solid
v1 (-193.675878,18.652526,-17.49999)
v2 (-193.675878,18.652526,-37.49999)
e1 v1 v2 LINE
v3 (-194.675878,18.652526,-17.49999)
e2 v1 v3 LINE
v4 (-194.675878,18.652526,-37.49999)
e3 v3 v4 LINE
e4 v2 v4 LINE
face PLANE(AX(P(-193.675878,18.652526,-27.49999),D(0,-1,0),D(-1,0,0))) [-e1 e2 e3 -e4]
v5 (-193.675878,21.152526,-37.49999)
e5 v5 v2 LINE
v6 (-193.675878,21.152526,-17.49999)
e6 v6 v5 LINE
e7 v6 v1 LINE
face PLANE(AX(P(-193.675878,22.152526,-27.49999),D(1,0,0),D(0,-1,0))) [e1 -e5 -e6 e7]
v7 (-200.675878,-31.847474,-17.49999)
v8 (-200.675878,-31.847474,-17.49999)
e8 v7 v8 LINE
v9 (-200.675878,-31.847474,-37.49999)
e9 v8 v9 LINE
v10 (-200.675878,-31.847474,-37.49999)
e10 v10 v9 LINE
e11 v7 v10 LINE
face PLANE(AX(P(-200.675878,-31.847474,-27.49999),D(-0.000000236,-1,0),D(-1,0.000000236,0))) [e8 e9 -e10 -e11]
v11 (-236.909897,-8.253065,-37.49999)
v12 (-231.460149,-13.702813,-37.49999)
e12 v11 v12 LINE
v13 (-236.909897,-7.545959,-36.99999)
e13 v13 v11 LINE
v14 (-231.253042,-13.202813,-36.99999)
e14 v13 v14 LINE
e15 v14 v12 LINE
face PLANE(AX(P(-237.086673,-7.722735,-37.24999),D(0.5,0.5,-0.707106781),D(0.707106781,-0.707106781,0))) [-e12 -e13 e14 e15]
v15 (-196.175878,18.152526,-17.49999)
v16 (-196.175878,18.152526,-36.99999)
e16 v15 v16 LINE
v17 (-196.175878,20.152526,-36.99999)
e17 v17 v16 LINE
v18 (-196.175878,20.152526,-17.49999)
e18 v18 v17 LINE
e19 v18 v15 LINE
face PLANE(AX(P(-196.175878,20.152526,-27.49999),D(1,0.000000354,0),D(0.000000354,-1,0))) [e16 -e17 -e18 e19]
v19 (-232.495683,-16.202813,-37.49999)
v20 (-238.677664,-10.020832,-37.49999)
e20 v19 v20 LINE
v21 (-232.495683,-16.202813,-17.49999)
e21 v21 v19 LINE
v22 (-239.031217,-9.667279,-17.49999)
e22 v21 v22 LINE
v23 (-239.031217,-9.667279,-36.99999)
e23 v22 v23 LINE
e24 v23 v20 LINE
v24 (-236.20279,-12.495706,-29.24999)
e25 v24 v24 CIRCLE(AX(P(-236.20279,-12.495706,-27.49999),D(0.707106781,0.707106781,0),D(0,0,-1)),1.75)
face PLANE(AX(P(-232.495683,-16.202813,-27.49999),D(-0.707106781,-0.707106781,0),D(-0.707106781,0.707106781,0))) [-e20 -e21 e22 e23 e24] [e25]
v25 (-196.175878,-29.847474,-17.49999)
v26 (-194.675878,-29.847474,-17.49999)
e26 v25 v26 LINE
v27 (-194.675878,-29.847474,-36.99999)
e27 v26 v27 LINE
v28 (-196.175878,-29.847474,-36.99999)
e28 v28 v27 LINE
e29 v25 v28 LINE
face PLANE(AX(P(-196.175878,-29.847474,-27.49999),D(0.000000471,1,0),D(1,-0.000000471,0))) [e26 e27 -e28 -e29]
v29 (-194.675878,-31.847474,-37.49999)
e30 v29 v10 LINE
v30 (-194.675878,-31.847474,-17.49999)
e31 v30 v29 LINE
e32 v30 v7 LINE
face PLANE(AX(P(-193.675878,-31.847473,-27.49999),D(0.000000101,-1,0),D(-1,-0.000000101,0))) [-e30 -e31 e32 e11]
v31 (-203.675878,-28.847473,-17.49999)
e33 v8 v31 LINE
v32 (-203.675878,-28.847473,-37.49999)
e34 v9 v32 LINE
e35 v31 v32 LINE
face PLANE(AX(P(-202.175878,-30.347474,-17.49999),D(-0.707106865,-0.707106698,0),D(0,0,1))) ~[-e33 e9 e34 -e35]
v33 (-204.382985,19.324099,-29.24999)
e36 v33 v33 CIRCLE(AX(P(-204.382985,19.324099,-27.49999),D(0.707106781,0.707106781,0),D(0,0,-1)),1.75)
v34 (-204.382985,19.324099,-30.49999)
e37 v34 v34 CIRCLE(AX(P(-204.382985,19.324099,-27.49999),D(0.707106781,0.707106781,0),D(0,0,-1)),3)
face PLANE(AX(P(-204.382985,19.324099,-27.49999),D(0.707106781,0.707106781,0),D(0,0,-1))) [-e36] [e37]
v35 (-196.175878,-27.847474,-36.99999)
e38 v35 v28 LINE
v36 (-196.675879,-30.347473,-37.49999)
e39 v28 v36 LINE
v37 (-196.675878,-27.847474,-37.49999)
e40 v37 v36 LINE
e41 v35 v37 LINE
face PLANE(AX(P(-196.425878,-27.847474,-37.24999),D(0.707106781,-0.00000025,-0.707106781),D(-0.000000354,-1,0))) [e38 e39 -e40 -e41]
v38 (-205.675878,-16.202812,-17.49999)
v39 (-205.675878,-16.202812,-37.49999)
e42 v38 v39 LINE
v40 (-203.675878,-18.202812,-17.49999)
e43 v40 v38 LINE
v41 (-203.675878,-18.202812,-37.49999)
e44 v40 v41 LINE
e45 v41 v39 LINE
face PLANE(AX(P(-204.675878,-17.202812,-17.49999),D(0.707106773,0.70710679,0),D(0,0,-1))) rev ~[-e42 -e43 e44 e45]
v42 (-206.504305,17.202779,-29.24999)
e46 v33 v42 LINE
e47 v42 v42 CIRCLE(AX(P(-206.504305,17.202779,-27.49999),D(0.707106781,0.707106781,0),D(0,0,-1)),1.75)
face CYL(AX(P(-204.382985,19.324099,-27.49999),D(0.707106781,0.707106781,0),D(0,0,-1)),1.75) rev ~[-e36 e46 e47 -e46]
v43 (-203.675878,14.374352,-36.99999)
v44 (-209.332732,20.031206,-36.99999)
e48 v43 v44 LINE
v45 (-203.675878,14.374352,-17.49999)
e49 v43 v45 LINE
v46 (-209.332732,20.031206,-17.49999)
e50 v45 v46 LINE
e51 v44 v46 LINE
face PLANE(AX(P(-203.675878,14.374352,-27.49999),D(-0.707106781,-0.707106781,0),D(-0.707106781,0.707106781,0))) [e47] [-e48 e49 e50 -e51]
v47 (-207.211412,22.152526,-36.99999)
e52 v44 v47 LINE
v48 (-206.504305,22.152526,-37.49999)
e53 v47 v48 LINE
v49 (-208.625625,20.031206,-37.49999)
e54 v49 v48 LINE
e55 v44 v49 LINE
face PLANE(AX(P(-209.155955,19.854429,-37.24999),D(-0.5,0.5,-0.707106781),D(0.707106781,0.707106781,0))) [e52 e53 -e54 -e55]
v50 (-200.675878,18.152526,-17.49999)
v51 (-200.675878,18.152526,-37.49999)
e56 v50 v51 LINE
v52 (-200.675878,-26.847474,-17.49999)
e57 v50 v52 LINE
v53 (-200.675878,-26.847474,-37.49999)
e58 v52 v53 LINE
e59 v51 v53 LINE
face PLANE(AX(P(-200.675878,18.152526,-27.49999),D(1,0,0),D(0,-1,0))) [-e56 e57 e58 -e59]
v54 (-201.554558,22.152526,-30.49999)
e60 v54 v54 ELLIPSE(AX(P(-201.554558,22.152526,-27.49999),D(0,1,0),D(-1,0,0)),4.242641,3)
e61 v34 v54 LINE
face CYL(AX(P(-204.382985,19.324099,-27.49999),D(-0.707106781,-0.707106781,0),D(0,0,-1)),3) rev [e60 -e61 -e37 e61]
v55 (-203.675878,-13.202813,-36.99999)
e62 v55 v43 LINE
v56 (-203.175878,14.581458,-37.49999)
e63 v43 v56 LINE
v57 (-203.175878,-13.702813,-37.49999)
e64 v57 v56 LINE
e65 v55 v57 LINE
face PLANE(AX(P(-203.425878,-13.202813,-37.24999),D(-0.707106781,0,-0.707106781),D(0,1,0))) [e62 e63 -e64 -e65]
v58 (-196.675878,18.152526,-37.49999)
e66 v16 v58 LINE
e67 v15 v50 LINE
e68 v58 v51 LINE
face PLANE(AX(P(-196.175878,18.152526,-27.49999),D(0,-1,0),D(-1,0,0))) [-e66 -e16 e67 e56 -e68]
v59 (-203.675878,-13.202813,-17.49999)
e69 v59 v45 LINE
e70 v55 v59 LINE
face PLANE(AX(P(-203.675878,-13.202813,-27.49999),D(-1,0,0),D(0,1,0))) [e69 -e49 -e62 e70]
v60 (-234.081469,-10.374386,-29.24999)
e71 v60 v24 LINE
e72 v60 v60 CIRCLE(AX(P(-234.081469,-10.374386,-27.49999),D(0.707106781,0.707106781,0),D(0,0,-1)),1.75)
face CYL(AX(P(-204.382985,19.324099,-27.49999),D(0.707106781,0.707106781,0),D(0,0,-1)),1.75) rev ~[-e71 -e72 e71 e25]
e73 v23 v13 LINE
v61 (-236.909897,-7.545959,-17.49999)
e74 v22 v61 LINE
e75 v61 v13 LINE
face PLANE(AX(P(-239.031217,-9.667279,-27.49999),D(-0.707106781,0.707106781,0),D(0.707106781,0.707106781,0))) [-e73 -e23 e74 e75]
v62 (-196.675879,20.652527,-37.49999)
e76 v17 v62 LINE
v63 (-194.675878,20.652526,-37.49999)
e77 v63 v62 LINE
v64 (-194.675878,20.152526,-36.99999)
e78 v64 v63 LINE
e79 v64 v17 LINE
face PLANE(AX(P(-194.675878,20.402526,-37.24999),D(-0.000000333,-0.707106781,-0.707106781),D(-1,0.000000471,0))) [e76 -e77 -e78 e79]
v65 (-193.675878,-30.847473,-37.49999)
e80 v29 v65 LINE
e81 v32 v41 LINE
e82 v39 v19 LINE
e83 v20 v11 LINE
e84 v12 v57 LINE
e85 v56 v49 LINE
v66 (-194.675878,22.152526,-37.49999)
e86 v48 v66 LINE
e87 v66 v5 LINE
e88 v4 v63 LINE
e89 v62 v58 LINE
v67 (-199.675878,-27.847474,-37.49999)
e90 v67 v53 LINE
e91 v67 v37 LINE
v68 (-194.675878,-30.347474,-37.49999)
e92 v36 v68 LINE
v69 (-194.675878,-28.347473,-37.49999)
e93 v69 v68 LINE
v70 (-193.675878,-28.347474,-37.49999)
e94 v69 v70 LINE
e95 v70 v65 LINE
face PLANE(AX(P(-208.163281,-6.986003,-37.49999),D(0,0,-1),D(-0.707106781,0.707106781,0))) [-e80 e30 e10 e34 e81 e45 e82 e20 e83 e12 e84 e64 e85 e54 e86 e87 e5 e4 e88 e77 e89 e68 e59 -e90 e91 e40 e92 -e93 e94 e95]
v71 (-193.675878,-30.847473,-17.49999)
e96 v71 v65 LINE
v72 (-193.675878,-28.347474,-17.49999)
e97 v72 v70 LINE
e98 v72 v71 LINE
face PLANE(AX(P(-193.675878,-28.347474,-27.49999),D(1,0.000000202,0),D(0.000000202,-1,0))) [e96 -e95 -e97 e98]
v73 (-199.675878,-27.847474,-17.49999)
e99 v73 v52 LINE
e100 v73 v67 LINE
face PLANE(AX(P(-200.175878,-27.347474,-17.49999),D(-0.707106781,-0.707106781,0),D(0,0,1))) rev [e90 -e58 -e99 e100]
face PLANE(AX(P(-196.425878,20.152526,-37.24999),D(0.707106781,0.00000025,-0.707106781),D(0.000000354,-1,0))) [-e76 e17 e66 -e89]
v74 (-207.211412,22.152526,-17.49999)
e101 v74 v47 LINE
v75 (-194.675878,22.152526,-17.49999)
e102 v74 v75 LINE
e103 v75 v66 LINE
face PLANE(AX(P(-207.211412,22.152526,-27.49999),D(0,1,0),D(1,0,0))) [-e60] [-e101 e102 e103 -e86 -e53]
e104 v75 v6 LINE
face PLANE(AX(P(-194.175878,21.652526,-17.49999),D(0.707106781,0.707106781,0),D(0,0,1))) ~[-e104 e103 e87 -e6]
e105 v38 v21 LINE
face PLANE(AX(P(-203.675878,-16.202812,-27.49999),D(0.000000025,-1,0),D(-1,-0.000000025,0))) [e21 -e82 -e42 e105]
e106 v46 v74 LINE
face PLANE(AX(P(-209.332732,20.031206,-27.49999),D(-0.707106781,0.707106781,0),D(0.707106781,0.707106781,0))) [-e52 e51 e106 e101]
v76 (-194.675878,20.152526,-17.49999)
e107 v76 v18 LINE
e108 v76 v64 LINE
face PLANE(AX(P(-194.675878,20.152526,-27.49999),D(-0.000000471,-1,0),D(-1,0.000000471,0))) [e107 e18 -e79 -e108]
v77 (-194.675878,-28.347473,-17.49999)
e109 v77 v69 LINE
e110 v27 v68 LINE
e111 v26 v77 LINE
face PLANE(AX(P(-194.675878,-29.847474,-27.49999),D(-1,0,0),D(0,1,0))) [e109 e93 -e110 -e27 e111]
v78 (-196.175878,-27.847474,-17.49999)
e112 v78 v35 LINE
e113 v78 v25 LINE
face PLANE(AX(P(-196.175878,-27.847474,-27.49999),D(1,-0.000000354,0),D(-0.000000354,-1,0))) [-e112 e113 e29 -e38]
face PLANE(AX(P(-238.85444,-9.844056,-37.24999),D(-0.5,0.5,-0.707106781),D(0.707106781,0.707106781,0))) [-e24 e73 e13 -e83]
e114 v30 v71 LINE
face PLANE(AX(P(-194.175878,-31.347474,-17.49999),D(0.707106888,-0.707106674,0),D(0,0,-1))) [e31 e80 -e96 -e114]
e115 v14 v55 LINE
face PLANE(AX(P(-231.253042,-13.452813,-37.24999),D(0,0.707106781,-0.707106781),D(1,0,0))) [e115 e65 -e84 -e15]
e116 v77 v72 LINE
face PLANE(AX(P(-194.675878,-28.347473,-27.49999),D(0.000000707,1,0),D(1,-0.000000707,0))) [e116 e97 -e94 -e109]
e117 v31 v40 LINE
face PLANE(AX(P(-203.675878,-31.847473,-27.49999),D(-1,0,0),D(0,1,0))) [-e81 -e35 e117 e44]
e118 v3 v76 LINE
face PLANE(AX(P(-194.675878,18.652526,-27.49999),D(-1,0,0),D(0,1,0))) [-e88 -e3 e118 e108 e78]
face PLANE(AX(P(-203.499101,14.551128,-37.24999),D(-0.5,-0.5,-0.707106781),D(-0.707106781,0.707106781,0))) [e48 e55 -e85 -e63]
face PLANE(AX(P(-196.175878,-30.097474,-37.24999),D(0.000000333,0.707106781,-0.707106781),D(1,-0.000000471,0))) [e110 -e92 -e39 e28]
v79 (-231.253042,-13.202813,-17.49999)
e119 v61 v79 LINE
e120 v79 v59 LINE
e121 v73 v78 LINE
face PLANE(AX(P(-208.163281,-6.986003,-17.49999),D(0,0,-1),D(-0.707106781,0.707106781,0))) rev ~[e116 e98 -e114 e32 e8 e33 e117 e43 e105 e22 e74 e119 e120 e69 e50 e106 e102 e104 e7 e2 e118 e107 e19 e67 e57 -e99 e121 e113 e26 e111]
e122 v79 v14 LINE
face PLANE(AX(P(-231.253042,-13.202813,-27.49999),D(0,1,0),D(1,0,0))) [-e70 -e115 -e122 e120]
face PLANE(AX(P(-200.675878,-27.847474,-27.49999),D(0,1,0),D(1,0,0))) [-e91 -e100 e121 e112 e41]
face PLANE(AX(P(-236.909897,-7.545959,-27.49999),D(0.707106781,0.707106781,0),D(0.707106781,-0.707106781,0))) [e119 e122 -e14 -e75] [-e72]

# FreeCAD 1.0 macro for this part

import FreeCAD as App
import Part
import Sketcher

V = App.Vector


def edges_at(feature, points):
    """Names of the edges that pass closest to the given points."""
    edges = feature.Shape.Edges
    near = lambda p: min(range(len(edges)), key=lambda i: edges[i].distToShape(Part.Vertex(*p))[0])
    return sorted({f"Edge{near(p) + 1}" for p in points})


def add_polygon(sketch, points):
    """Adds a closed chain of lines whose ends are joined by coincident constraints."""
    first, n = sketch.GeometryCount, len(points)
    for a, b in zip(points, points[1:] + points[:1]):
        sketch.addGeometry(Part.LineSegment(App.Vector(*a, 0), App.Vector(*b, 0)), False)
    for i in range(n):
        sketch.addConstraint(Sketcher.Constraint("Coincident", first + i, 2, first + (i + 1) % n, 1))

doc = App.newDocument("Part")
body = doc.addObject("PartDesign::Body", "Body")

sketch1 = body.newObject("Sketcher::SketchObject", "Sketch")
sketch1.AttachmentSupport = (doc.getObject("XY_Plane"), [""])
sketch1.MapMode = "FlatFace"
sketch1.AttachmentOffset = App.Placement(V(0, 0, 24), App.Rotation())
sketch1.addGeometry(Part.Circle(V(0, 0.5, 0), V(0, 0, 1), 3), False)
sketch1.addConstraint(Sketcher.Constraint("PointOnObject", 0, 3, -2))
sketch1.addConstraint(Sketcher.Constraint("Diameter", 0, 6.0))
sketch1.addConstraint(Sketcher.Constraint("DistanceY", -1, 1, 0, 3, 0.5))
pad1 = body.newObject("PartDesign::Pad", "Pad")
pad1.Profile = sketch1
pad1.Length = 10
body2 = doc.addObject("PartDesign::Body", "Body001")

sketch2 = body2.newObject("Sketcher::SketchObject", "Sketch001")
sketch2.AttachmentSupport = (doc.getObject("YZ_Plane001"), [""])
sketch2.MapMode = "FlatFace"
add_polygon(sketch2, [(4.5, 21), (4.5, 24), (-5.071068, 33.571068), (-7.545942, 31.096194), (-6.838835, 30.389087), (-5.778175, 31.449747), (-4.717514, 30.389087), (-6.131728, 28.974874), (-2.949747, 25.792893), (-35.476659, -6.734019), (-38.65864, -3.552038), (-40.072853, -4.966252), (-41.133514, -3.905592), (-40.072853, -2.844931), (-40.77996, -2.137825), (-43.254834, -4.612698), (-38.305087, -9.562446), (-36.183766, -11.683766), (-25.12132, -0.62132), (-4.742641, -21), (4.5, -21), (4.5, -18), (-3.5, -18), (-23, 1.5), (-3.5, 21)])
sketch2.addConstraint(Sketcher.Constraint("Vertical", 0))
sketch2.addConstraint(Sketcher.Constraint("Horizontal", 19))
sketch2.addConstraint(Sketcher.Constraint("Vertical", 20))
sketch2.addConstraint(Sketcher.Constraint("Horizontal", 21))
sketch2.addConstraint(Sketcher.Constraint("Horizontal", 24))
sketch2.addConstraint(Sketcher.Constraint("Symmetric", 19, 2, 24, 2, -1))
sketch2.addConstraint(Sketcher.Constraint("Perpendicular", 1, 2))
sketch2.addConstraint(Sketcher.Constraint("Perpendicular", 2, 3))
sketch2.addConstraint(Sketcher.Constraint("Perpendicular", 3, 4))
sketch2.addConstraint(Sketcher.Constraint("Perpendicular", 4, 5))
sketch2.addConstraint(Sketcher.Constraint("Perpendicular", 5, 6))
sketch2.addConstraint(Sketcher.Constraint("Perpendicular", 6, 7))
sketch2.addConstraint(Sketcher.Constraint("Perpendicular", 7, 8))
sketch2.addConstraint(Sketcher.Constraint("Perpendicular", 8, 9))
sketch2.addConstraint(Sketcher.Constraint("Perpendicular", 9, 10))
sketch2.addConstraint(Sketcher.Constraint("Perpendicular", 10, 11))
sketch2.addConstraint(Sketcher.Constraint("Perpendicular", 11, 12))
sketch2.addConstraint(Sketcher.Constraint("Perpendicular", 12, 13))
sketch2.addConstraint(Sketcher.Constraint("Perpendicular", 13, 14))
sketch2.addConstraint(Sketcher.Constraint("Perpendicular", 14, 15))
sketch2.addConstraint(Sketcher.Constraint("Parallel", 15, 16))
sketch2.addConstraint(Sketcher.Constraint("Perpendicular", 16, 17))
sketch2.addConstraint(Sketcher.Constraint("Perpendicular", 17, 18))
sketch2.addConstraint(Sketcher.Constraint("Parallel", 18, 22))
sketch2.addConstraint(Sketcher.Constraint("Perpendicular", 22, 23))
sketch2.addConstraint(Sketcher.Constraint("Horizontal", 3, 2, 5, 2))
sketch2.addConstraint(Sketcher.Constraint("Vertical", 10, 2, 12, 2))
sketch2.addConstraint(Sketcher.Constraint("Vertical", 21, 2, 23, 2))
sketch2.addConstraint(Sketcher.Constraint("Equal", 0, 20))
sketch2.addConstraint(Sketcher.Constraint("Equal", 4, 5))
sketch2.addConstraint(Sketcher.Constraint("Equal", 7, 9))
sketch2.addConstraint(Sketcher.Constraint("Equal", 6, 10))
sketch2.addConstraint(Sketcher.Constraint("Equal", 5, 11))
sketch2.addConstraint(Sketcher.Constraint("Equal", 3, 13))
sketch2.addConstraint(Sketcher.Constraint("Equal", 2, 14))
sketch2.addConstraint(Sketcher.Constraint("DistanceX", 21, 2, 21, 1, 8.0))
sketch2.addConstraint(Sketcher.Constraint("DistanceY", 0, 1, 0, 2, 3.0))
sketch2.addConstraint(Sketcher.Constraint("Distance", 3, 1.0))
sketch2.addConstraint(Sketcher.Constraint("Distance", 6, 2.0))
sketch2.addConstraint(Sketcher.Constraint("Distance", 8, 46.0))
sketch2.addConstraint(Sketcher.Constraint("Distance", 15, 7.0))
sketch2.addConstraint(Sketcher.Constraint("Distance", 16, 3.0))
sketch2.addConstraint(Sketcher.Constraint("DistanceY", -1, 1, 0, 2, 24.0))
sketch2.addConstraint(Sketcher.Constraint("DistanceX", 22, 2, -1, 1, 23.0))
sketch2.addConstraint(Sketcher.Constraint("Distance", 2, 3.5))
sketch2.addConstraint(Sketcher.Constraint("Distance", 4, 1.5))
sketch2.addConstraint(Sketcher.Constraint("Distance", 7, 4.500001))
sketch2.addConstraint(Sketcher.Constraint("DistanceX", 9, 2, 18, 2, 33.915999))
sketch2.addConstraint(Sketcher.Constraint("DistanceX", 19, 1, 19, 2, 9.242641))
pad2 = body2.newObject("PartDesign::Pad", "Pad001")
pad2.Profile = sketch2
pad2.Length = 20
pad2.Midplane = True
doc.recompute()

boolean = body2.newObject("PartDesign::Boolean", "Boolean")
boolean.Type = "Cut"
boolean.addObjects([body])

sketch3 = body2.newObject("Sketcher::SketchObject", "Sketch002")
sketch3.AttachmentSupport = (doc.getObject("XY_Plane001"), [""])
sketch3.MapMode = "FlatFace"
sketch3.AttachmentOffset = App.Placement(V(0, 0, 24), App.Rotation())
sketch3.addGeometry(Part.Circle(V(0, 0.5, 0), V(0, 0, 1), 1.75), False)
sketch3.addConstraint(Sketcher.Constraint("PointOnObject", 0, 3, -2))
sketch3.addConstraint(Sketcher.Constraint("Diameter", 0, 3.5))
sketch3.addConstraint(Sketcher.Constraint("DistanceY", -1, 1, 0, 3, 0.5))
pocket1 = body2.newObject("PartDesign::Pocket", "Pocket")
pocket1.Profile = sketch3
pocket1.Type = "ThroughAll"
doc.recompute()

chamfer = body2.newObject("PartDesign::Chamfer", "Chamfer")
chamfer.Base = (pocket1, edges_at(pocket1, [(0, -36.184, -11.684)]))
chamfer.Size = 3
doc.recompute()

chamfer2 = body2.newObject("PartDesign::Chamfer", "Chamfer001")
chamfer2.Base = (chamfer, edges_at(chamfer, [(0, -25.121, -0.621)]))
chamfer2.Size = 2
doc.recompute()

chamfer3 = body2.newObject("PartDesign::Chamfer", "Chamfer002")
chamfer3.Base = (chamfer2, edges_at(chamfer2, [(0, -35.477, -6.734), (0, -43.255, -4.613), (0, -5.071, 33.571)]))
chamfer3.Size = 1
doc.recompute()

chamfer4 = body2.newObject("PartDesign::Chamfer", "Chamfer003")
chamfer4.Base = (chamfer3, edges_at(chamfer3, [
    (10, -5.425, 29.682),
    (10, -39.366, -4.259),
    (10, -5.248, 30.919),
    (10, -40.603, -4.436),
    (10, 4.5, 22.5),
    (10, 0.5, 21),
    (10, -13.25, 11.25),
    (10, -13.25, -8.25),
    (10, 0.5, -18),
    (10, 4.5, -19.5),
]))
chamfer4.Size = 0.5
body3 = doc.addObject("PartDesign::Body", "Body002")
doc.recompute()

body2.Placement = App.Placement(V(0, 0, 0), App.Rotation(V(0, 1, 0), 90))
boolean2 = body3.newObject("PartDesign::Boolean", "Boolean001")
boolean2.Type = "Fuse"
boolean2.addObjects([body2])
body4 = doc.addObject("PartDesign::Body", "Body003")
doc.recompute()

body3.Placement = App.Placement(V(-220.999994, 1.999983, -27.49999), App.Rotation(V(0, 0, 1), 45))
boolean3 = body4.newObject("PartDesign::Boolean", "Boolean002")
boolean3.Type = "Fuse"
boolean3.addObjects([body3])

doc.recompute()
